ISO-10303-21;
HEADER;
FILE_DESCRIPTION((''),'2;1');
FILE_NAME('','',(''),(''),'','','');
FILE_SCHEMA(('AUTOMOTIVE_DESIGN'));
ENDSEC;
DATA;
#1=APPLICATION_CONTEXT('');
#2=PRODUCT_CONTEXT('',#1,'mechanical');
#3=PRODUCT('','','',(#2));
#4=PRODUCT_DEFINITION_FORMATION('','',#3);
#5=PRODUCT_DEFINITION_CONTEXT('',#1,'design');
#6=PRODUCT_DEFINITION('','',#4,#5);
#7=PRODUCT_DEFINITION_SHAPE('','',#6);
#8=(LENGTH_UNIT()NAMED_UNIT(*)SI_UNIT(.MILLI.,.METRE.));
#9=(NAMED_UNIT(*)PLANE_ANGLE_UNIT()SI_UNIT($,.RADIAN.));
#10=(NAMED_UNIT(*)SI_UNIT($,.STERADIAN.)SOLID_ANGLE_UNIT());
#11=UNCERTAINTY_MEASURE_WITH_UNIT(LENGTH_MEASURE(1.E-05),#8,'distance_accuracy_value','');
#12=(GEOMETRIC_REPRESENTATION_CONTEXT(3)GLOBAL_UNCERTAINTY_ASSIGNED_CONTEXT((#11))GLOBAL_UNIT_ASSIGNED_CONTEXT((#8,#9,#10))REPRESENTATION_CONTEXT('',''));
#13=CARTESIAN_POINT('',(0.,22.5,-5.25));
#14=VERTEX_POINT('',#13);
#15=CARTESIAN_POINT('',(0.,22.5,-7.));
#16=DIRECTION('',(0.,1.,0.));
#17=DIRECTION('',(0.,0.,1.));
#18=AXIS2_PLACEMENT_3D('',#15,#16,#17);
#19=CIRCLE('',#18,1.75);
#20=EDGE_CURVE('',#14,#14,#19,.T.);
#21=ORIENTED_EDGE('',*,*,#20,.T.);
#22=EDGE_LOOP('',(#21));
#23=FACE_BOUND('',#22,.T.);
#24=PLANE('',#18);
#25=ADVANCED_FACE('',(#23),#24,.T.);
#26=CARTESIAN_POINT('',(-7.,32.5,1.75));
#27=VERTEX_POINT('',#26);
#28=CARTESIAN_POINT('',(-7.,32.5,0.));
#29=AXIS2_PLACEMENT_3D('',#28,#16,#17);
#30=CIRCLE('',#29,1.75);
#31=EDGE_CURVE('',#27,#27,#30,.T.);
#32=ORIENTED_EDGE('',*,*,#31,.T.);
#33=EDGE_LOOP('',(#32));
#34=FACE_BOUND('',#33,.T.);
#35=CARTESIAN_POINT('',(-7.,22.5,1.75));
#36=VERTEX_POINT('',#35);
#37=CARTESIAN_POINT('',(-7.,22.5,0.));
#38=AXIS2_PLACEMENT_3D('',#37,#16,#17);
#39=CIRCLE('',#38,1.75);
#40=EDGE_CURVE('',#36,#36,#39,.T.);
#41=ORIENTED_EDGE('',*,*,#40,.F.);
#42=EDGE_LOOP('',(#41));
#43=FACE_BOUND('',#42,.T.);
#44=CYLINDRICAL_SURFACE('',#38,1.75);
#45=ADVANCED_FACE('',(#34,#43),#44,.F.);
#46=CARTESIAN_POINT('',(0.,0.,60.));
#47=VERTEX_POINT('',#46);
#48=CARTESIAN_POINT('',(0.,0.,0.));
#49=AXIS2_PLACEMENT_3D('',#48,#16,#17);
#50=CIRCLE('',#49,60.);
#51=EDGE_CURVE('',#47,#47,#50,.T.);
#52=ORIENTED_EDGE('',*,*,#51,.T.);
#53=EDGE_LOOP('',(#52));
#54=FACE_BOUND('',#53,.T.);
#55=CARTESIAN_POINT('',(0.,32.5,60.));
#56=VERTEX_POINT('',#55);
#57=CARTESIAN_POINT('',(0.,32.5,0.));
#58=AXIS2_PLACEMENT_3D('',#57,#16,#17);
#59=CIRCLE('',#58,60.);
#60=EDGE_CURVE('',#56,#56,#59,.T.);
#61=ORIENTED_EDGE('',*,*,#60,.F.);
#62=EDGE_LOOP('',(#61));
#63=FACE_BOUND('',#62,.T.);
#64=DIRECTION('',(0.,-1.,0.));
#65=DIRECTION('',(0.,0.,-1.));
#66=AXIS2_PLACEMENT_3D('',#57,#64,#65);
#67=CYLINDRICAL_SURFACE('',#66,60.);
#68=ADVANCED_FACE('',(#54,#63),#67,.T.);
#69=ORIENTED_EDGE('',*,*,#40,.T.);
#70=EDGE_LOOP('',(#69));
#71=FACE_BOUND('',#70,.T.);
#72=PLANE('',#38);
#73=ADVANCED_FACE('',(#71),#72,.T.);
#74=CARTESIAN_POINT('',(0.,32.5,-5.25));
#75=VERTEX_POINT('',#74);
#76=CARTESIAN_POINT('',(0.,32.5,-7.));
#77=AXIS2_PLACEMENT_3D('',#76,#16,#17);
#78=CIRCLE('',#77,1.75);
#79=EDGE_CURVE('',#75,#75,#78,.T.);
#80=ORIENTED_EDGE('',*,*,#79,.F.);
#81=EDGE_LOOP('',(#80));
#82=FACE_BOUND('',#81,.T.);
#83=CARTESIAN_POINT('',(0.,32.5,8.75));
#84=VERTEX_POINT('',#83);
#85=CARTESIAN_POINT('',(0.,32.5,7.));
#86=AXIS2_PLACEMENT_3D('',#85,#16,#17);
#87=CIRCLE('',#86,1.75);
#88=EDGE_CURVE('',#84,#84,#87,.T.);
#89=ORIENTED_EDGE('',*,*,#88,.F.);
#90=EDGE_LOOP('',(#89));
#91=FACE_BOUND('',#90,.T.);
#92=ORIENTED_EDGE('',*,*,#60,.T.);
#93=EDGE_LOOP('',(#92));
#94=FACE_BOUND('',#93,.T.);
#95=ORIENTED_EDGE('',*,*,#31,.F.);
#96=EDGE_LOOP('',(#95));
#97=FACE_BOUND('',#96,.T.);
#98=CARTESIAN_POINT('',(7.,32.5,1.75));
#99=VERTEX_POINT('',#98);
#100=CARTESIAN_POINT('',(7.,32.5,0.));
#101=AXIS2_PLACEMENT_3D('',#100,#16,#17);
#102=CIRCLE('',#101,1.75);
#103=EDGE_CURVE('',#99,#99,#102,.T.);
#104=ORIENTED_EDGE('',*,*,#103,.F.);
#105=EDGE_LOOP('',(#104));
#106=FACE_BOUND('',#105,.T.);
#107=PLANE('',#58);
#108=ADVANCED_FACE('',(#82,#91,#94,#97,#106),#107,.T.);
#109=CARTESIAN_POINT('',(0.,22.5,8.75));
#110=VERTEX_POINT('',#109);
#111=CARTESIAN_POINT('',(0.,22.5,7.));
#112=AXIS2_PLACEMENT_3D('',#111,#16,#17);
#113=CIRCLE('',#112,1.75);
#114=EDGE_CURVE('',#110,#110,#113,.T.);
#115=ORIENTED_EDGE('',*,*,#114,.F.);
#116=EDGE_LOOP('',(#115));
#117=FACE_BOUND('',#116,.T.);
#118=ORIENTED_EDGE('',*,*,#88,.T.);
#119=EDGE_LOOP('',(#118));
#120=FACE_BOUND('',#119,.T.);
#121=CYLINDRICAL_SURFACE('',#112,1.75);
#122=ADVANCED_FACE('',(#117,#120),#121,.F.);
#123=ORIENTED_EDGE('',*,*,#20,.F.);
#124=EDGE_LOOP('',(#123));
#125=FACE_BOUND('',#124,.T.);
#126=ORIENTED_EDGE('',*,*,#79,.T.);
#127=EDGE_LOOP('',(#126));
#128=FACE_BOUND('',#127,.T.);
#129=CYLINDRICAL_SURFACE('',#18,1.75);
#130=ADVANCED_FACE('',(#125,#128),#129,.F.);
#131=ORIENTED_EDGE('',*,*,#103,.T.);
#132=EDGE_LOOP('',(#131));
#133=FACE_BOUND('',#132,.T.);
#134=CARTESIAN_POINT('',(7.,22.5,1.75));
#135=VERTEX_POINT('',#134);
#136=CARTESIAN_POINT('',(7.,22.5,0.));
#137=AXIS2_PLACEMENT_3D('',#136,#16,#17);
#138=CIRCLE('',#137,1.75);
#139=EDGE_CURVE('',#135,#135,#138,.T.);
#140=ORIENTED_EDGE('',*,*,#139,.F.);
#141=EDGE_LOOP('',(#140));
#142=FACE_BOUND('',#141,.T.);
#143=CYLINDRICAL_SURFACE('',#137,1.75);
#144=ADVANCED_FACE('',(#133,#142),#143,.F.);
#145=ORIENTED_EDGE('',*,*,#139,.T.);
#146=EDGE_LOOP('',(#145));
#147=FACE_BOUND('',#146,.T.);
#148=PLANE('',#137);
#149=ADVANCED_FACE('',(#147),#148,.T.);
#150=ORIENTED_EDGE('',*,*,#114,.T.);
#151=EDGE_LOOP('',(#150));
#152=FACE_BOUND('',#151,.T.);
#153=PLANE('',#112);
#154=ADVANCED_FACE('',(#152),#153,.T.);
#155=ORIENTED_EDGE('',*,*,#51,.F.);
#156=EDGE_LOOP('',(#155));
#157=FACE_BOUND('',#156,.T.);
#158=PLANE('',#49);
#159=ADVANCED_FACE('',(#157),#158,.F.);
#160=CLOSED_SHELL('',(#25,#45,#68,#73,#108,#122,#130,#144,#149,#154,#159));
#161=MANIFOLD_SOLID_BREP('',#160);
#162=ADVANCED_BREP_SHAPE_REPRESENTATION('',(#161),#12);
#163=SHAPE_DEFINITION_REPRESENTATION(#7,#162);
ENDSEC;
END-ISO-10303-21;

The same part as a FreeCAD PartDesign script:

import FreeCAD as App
import Part
import Sketcher
from FreeCAD import Vector
Q = App.Units.Quantity

doc = App.newDocument("Part")
body = doc.addObject("PartDesign::Body", "Body")

# Sketch on XZ plane
sketch1 = doc.addObject("Sketcher::SketchObject", "Sketch")
body.addObject(sketch1)
sketch1.AttachmentSupport = (doc.XZ_Plane, [""])
sketch1.MapMode = "FlatFace"
sketch1.addGeometry(Part.Circle(Vector(0, 0, 0), Vector(0, 0, 1), 60), False)
sketch1.addConstraint([
    Sketcher.Constraint("Coincident", 0, 3, -1, 1),
    Sketcher.Constraint("Diameter", 0, Q("120 mm")),
])
pad1 = doc.addObject("PartDesign::Pad", "Pad")
body.addObject(pad1)
pad1.Profile = sketch1
pad1.Length = 32.5
pad1.Reversed = True

# Sketch on XZ plane
sketch2 = doc.addObject("Sketcher::SketchObject", "Sketch001")
body.addObject(sketch2)
sketch2.AttachmentSupport = (doc.XZ_Plane, [""])
sketch2.MapMode = "FlatFace"
sketch2.AttachmentOffset = App.Placement(Vector(0, 0, -32.5), App.Rotation())
sketch2.addGeometry([
    Part.Circle(Vector(7, 0, 0), Vector(0, 0, 1), 1.8),
    Part.Circle(Vector(0, 7, 0), Vector(0, 0, 1), 1.8),
    Part.Circle(Vector(-7, 0, 0), Vector(0, 0, 1), 1.8),
    Part.Circle(Vector(0, -7, 0), Vector(0, 0, 1), 1.8),
], False)
sketch2.addConstraint([
    Sketcher.Constraint("Equal", 0, 1),
    Sketcher.Constraint("Equal", 1, 2),
    Sketcher.Constraint("Equal", 2, 3),
    Sketcher.Constraint("Symmetric", 0, 3, 2, 3, -1, 1),
    Sketcher.Constraint("Symmetric", 1, 3, 3, 3, -1, 1),
    Sketcher.Constraint("PointOnObject", 0, 3, -1),
    Sketcher.Constraint("PointOnObject", 1, 3, -2),
    Sketcher.Constraint("Diameter", 0, Q("3.5 mm")),
    Sketcher.Constraint("DistanceX", -1, 1, 0, 3, Q("7 mm")),
    Sketcher.Constraint("DistanceY", -1, 1, 1, 3, Q("7 mm")),
])
pocket1 = doc.addObject("PartDesign::Pocket", "Pocket")
body.addObject(pocket1)
pocket1.Profile = sketch2
pocket1.Length = 10
pocket1.Reversed = True

doc.recompute()
